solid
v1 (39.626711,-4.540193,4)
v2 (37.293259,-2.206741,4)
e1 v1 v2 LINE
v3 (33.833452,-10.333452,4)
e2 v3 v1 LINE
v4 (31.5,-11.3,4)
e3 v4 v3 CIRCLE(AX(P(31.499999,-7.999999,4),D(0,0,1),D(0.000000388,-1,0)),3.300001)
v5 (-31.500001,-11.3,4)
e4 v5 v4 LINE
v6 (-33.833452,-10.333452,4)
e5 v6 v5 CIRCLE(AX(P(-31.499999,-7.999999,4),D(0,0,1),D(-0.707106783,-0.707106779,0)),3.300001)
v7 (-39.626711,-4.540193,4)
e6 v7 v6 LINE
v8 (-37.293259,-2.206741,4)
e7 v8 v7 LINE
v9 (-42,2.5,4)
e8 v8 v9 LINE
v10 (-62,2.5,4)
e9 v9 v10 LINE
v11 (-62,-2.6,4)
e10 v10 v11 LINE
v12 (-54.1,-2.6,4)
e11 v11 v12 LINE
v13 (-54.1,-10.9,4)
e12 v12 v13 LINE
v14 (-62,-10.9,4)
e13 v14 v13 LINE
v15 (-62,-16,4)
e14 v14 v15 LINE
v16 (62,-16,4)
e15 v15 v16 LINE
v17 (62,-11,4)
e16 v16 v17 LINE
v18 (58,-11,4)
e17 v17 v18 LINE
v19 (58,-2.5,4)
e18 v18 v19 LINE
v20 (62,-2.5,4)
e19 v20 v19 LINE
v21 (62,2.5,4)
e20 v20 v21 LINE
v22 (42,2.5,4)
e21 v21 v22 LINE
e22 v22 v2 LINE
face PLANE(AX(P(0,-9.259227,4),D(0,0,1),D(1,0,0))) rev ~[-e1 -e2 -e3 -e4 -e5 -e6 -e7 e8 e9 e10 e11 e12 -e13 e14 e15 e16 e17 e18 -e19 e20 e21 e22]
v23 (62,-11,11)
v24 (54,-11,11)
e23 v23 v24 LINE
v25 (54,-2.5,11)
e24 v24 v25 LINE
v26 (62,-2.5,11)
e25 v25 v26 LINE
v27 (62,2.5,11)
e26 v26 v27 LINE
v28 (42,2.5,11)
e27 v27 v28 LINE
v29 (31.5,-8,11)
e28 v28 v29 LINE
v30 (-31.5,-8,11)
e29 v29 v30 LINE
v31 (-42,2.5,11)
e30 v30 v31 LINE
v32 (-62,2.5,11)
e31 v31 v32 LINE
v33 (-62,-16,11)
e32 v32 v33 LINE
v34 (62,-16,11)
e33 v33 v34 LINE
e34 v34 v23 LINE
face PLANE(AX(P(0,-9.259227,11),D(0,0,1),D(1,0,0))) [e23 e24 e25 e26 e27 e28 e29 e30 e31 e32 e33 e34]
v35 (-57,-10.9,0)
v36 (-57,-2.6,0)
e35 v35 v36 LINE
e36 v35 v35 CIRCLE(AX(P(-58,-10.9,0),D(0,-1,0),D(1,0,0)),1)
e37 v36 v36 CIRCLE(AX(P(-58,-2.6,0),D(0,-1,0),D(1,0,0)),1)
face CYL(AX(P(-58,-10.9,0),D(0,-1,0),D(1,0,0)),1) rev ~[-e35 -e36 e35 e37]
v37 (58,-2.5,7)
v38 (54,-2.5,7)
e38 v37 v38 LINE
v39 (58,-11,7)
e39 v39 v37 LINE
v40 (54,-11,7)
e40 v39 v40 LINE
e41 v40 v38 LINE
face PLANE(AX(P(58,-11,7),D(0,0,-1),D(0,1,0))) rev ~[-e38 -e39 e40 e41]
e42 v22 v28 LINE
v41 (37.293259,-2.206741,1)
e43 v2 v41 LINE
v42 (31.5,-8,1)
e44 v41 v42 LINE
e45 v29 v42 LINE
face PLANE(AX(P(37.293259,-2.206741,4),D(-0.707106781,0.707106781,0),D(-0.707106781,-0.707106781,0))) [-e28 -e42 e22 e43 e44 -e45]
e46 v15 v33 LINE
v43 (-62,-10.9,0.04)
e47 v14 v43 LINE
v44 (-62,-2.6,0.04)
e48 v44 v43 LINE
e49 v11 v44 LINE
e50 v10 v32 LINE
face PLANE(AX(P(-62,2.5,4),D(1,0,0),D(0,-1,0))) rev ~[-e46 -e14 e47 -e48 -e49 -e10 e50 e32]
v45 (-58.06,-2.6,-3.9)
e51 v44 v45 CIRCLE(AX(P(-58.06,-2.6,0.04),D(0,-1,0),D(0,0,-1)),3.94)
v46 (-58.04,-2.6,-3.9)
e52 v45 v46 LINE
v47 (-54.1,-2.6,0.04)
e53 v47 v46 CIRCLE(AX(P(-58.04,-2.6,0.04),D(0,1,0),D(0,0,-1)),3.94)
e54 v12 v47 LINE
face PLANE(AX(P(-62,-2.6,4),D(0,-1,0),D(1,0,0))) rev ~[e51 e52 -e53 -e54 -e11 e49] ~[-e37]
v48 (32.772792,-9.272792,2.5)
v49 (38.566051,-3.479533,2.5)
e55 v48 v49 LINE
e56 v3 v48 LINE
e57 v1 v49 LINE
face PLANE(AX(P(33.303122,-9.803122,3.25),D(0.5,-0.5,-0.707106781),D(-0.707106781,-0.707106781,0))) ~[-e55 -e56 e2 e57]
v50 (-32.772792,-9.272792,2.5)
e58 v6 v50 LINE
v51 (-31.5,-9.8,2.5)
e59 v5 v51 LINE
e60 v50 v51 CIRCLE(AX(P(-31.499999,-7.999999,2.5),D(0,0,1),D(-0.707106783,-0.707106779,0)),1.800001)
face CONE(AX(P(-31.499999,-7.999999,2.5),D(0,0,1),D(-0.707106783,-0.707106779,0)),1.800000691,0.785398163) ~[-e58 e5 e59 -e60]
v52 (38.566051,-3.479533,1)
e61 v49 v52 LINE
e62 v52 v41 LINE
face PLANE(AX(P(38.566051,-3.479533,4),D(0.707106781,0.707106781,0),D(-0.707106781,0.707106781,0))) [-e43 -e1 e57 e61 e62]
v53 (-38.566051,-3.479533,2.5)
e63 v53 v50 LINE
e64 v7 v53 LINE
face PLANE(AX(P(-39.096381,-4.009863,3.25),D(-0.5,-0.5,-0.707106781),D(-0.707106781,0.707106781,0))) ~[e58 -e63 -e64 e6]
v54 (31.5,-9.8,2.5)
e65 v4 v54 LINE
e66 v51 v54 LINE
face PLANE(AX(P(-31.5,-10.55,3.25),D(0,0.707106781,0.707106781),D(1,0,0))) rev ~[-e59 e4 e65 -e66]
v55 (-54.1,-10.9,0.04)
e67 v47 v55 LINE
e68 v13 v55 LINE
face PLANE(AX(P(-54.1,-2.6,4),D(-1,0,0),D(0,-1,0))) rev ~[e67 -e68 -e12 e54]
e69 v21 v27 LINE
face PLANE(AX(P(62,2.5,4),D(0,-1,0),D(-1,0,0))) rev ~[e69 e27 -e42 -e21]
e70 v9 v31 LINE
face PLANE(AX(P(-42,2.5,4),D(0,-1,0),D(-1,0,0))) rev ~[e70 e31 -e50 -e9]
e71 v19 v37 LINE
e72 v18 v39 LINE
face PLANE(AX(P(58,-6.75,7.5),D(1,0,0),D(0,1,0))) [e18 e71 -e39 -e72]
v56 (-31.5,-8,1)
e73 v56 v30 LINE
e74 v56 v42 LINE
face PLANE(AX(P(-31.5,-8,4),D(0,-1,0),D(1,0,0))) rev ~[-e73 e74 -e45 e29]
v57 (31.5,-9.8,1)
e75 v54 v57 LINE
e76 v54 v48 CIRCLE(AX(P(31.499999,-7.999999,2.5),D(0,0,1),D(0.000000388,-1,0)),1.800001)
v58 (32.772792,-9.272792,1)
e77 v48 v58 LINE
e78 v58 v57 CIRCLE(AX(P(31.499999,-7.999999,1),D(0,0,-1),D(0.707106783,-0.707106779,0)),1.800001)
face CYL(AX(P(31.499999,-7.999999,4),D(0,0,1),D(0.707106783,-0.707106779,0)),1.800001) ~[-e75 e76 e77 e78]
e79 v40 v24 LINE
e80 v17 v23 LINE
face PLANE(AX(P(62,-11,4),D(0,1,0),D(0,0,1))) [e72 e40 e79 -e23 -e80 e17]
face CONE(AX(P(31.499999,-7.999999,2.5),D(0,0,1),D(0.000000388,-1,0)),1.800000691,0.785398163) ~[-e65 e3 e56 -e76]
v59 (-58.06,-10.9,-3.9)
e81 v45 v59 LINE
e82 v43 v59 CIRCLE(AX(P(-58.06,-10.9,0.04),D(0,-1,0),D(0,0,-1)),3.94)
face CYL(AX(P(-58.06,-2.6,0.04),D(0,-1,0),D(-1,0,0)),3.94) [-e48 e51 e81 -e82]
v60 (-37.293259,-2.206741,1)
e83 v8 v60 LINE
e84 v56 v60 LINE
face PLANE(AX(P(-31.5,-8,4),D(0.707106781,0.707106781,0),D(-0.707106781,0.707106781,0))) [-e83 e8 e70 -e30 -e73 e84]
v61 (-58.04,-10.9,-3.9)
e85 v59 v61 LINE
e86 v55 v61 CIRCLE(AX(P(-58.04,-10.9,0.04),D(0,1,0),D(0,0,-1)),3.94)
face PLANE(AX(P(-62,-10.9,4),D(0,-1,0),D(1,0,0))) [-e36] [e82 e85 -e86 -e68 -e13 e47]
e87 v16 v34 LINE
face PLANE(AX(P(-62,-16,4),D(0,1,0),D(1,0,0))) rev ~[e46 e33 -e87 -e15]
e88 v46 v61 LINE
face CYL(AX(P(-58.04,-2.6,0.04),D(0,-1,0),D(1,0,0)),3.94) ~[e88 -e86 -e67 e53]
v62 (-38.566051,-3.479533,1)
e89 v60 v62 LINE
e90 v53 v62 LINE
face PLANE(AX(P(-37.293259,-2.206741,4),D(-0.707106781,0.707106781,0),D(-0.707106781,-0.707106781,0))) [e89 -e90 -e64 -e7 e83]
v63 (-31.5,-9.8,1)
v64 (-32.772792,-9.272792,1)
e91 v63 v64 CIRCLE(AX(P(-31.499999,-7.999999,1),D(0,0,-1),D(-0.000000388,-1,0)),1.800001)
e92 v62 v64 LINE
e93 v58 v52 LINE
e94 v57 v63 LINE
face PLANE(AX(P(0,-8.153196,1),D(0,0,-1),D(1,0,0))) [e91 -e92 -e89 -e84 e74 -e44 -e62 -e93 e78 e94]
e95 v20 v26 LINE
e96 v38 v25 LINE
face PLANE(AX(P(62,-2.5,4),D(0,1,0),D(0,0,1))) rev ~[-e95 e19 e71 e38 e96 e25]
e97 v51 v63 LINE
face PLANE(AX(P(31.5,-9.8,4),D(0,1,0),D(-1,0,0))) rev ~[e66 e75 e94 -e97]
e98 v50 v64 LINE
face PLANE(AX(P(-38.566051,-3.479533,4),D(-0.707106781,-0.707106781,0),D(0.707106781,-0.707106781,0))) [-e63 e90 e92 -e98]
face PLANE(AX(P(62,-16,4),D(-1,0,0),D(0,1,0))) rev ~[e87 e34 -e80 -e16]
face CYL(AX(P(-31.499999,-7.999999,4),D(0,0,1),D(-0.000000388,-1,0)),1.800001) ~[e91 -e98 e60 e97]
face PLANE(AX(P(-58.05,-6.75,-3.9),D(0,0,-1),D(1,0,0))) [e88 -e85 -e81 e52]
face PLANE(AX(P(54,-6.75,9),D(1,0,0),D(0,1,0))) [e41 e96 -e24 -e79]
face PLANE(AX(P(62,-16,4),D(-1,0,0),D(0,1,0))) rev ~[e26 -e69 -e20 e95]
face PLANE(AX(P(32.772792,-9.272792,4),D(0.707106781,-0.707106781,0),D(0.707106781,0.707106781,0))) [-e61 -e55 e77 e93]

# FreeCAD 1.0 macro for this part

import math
import FreeCAD as App
import Part
import Sketcher

V = App.Vector


def edges_at(feature, points):
    """Names of the edges that pass closest to the given points."""
    edges = feature.Shape.Edges
    near = lambda p: min(range(len(edges)), key=lambda i: edges[i].distToShape(Part.Vertex(*p))[0])
    return sorted({f"Edge{near(p) + 1}" for p in points})


def add_polygon(sketch, points):
    """Adds a closed chain of lines whose ends are joined by coincident constraints."""
    first, n = sketch.GeometryCount, len(points)
    for a, b in zip(points, points[1:] + points[:1]):
        sketch.addGeometry(Part.LineSegment(App.Vector(*a, 0), App.Vector(*b, 0)), False)
    for i in range(n):
        sketch.addConstraint(Sketcher.Constraint("Coincident", first + i, 2, first + (i + 1) % n, 1))

doc = App.newDocument("Part")
body = doc.addObject("PartDesign::Body", "Body")

# Sketch on XY plane
sketch1 = body.newObject("Sketcher::SketchObject", "Sketch")
sketch1.AttachmentSupport = (doc.getObject("XY_Plane"), [""])
sketch1.MapMode = "FlatFace"
sketch1.AttachmentOffset = App.Placement(V(0, 0, 4), App.Rotation())
add_polygon(sketch1, [(-62, 2), (-62, -16), (62, -16), (62, 2), (42, 2), (32, -8), (-32, -8), (-42, 2)])  # lines 0-7
sketch1.addConstraint([
    Sketcher.Constraint("Vertical", 0),
    Sketcher.Constraint("Horizontal", 1),
    Sketcher.Constraint("Vertical", 2),
    Sketcher.Constraint("Horizontal", 3),
    Sketcher.Constraint("Horizontal", 5),
    Sketcher.Constraint("Horizontal", 7),
    Sketcher.Constraint("Symmetric", 3, 2, 6, 2, -2),
    Sketcher.Constraint("Perpendicular", 4, 6),
    Sketcher.Constraint("Equal", 3, 7),
    Sketcher.Constraint("Equal", 4, 6),
    Sketcher.Constraint("DistanceX", 1, 1, 1, 2, 124.0),
    Sketcher.Constraint("DistanceX", 3, 2, 3, 1, 20.0),
    Sketcher.Constraint("DistanceX", 5, 2, 5, 1, 63.0),
    Sketcher.Constraint("DistanceY", 0, 2, 0, 1, 18.5),
    Sketcher.Constraint("DistanceY", 0, 2, -1, 1, 16.0),
])
pad1 = body.newObject("PartDesign::Pad", "Pad")
pad1.Profile = sketch1
pad1.Length = 7

# Sketch on XY plane
sketch2 = body.newObject("Sketcher::SketchObject", "Sketch001")
sketch2.AttachmentSupport = (doc.getObject("XY_Plane"), [""])
sketch2.MapMode = "FlatFace"
sketch2.AttachmentOffset = App.Placement(V(0, 0, 4), App.Rotation())
sketch2.addGeometry([
    Part.LineSegment(V(-31.5, -8, 0), V(31.5, -8, 0)),  # 0
    Part.LineSegment(V(31.5, -8, 0), V(37.3, -2.2, 0)),  # 1
    Part.LineSegment(V(37.3, -2.2, 0), V(38.6, -3.5, 0)),  # 2
    Part.LineSegment(V(38.6, -3.5, 0), V(32.8, -9.3, 0)),  # 3
    Part.ArcOfCircle(Part.Circle(V(31.5, -8, 0), V(0, 0, 1), 1.8), math.radians(-90), math.radians(-45)),  # 4
    Part.LineSegment(V(31.5, -9.8, 0), V(-31.5, -9.8, 0)),  # 5
    Part.ArcOfCircle(Part.Circle(V(-31.5, -8, 0), V(0, 0, 1), 1.8), math.radians(-135), math.radians(-90)),  # 6
    Part.LineSegment(V(-32.8, -9.3, 0), V(-38.6, -3.5, 0)),  # 7
    Part.LineSegment(V(-38.6, -3.5, 0), V(-37.3, -2.2, 0)),  # 8
    Part.LineSegment(V(-37.3, -2.2, 0), V(-31.5, -8, 0)),  # 9
], False)
sketch2.addConstraint([
    Sketcher.Constraint("Coincident", 0, 2, 1, 1),
    Sketcher.Constraint("Coincident", 1, 2, 2, 1),
    Sketcher.Constraint("Coincident", 2, 2, 3, 1),
    Sketcher.Constraint("Tangent", 3, 2, 4, 2),
    Sketcher.Constraint("Tangent", 4, 1, 5, 1),
    Sketcher.Constraint("Tangent", 5, 2, 6, 2),
    Sketcher.Constraint("Tangent", 6, 1, 7, 1),
    Sketcher.Constraint("Coincident", 7, 2, 8, 1),
    Sketcher.Constraint("Coincident", 8, 2, 9, 1),
    Sketcher.Constraint("Coincident", 9, 2, 0, 1),
    Sketcher.Constraint("Horizontal", 0),
    Sketcher.Constraint("Horizontal", 5),
    Sketcher.Constraint("Coincident", 0, 2, 4, 3),
    Sketcher.Constraint("Coincident", 9, 2, 6, 3),
    Sketcher.Constraint("Symmetric", 3, 2, 6, 1, -2),
    Sketcher.Constraint("Symmetric", 1, 2, 8, 2, -2),
    Sketcher.Constraint("Perpendicular", 1, 2),
    Sketcher.Constraint("Perpendicular", 2, 3),
    Sketcher.Constraint("Perpendicular", 3, 7),
    Sketcher.Constraint("Perpendicular", 7, 8),
    Sketcher.Constraint("Radius", 4, 1.800001),
    Sketcher.Constraint("DistanceX", 0, 1, 0, 2, 63.0),
    Sketcher.Constraint("DistanceY", 4, 3, -1, 1, 7.999999),
    Sketcher.Constraint("DistanceX", -1, 1, 1, 2, 37.293259),
])
pad2 = body.newObject("PartDesign::Pad", "Pad001")
pad2.Profile = sketch2
pad2.Length = 3
pad2.Reversed = True
doc.recompute()

chamfer = body.newObject("PartDesign::Chamfer", "Chamfer")
chamfer.Base = (pad2, edges_at(pad2, [(-35.669, -6.376, 4)]))
chamfer.Size = 1.5

# Sketch on XY plane
sketch3 = body.newObject("Sketcher::SketchObject", "Sketch002")
sketch3.AttachmentSupport = (doc.getObject("XY_Plane"), [""])
sketch3.MapMode = "FlatFace"
sketch3.AttachmentOffset = App.Placement(V(0, 0, 4), App.Rotation())
add_polygon(sketch3, [(-62, -11), (-62, -3), (-54, -3), (-54, -11)])  # lines 0-3
sketch3.addConstraint([
    Sketcher.Constraint("Vertical", 0),
    Sketcher.Constraint("Horizontal", 1),
    Sketcher.Constraint("Vertical", 2),
    Sketcher.Constraint("Horizontal", 3),
    Sketcher.Constraint("DistanceX", 1, 1, 1, 2, 7.9),
    Sketcher.Constraint("DistanceY", 0, 1, 0, 2, 8.3),
    Sketcher.Constraint("DistanceX", 0, 2, -1, 1, 62.0),
    Sketcher.Constraint("DistanceY", 0, 2, -1, 1, 2.6),
])
pad3 = body.newObject("PartDesign::Pad", "Pad002")
pad3.Profile = sketch3
pad3.Length = 7.9
pad3.Reversed = True
doc.recompute()

fillet = body.newObject("PartDesign::Fillet", "Fillet")
fillet.Base = (pad3, edges_at(pad3, [(-54.1, -6.75, -3.9), (-62, -6.75, -3.9)]))
fillet.Radius = 3.94

# Sketch on XZ plane
sketch4 = body.newObject("Sketcher::SketchObject", "Sketch003")
sketch4.AttachmentSupport = (doc.getObject("XZ_Plane"), [""])
sketch4.MapMode = "FlatFace"
sketch4.AttachmentOffset = App.Placement(V(0, 0, 10.9), App.Rotation())
sketch4.addGeometry(Part.Circle(V(-58, 0, 0), V(0, 0, 1), 1), False)
sketch4.addConstraint([
    Sketcher.Constraint("PointOnObject", 0, 3, -1),
    Sketcher.Constraint("Diameter", 0, 2.0),
    Sketcher.Constraint("DistanceX", 0, 3, -1, 1, 58.0),
])
pocket1 = body.newObject("PartDesign::Pocket", "Pocket")
pocket1.Profile = sketch4
pocket1.Length = 25

# Sketch on YZ plane
sketch5 = body.newObject("Sketcher::SketchObject", "Sketch004")
sketch5.AttachmentSupport = (doc.getObject("YZ_Plane"), [""])
sketch5.MapMode = "FlatFace"
sketch5.AttachmentOffset = App.Placement(V(0, 0, 62), App.Rotation())
add_polygon(sketch5, [(-11, 11), (-11, 4), (-2, 4), (-2, 11)])  # lines 0-3
sketch5.addConstraint([
    Sketcher.Constraint("Vertical", 0),
    Sketcher.Constraint("Horizontal", 1),
    Sketcher.Constraint("Vertical", 2),
    Sketcher.Constraint("Horizontal", 3),
    Sketcher.Constraint("DistanceY", 0, 2, 0, 1, 7.0),
    Sketcher.Constraint("DistanceX", 1, 1, 1, 2, 8.5),
    Sketcher.Constraint("DistanceX", 0, 2, -1, 1, 11.0),
    Sketcher.Constraint("DistanceY", -1, 1, 0, 2, 4.0),
])
pocket2 = body.newObject("PartDesign::Pocket", "Pocket001")
pocket2.Profile = sketch5
pocket2.Length = 4

# Sketch on YZ plane
sketch6 = body.newObject("Sketcher::SketchObject", "Sketch005")
sketch6.AttachmentSupport = (doc.getObject("YZ_Plane"), [""])
sketch6.MapMode = "FlatFace"
sketch6.AttachmentOffset = App.Placement(V(0, 0, 58), App.Rotation())
add_polygon(sketch6, [(-11, 11), (-11, 7), (-2.5, 7), (-2.5, 11)])  # lines 0-3
sketch6.addConstraint([
    Sketcher.Constraint("Vertical", 0),
    Sketcher.Constraint("Horizontal", 1),
    Sketcher.Constraint("Vertical", 2),
    Sketcher.Constraint("Horizontal", 3),
    Sketcher.Constraint("DistanceY", 0, 2, 0, 1, 4.0),
    Sketcher.Constraint("DistanceX", 1, 1, 1, 2, 8.5),
    Sketcher.Constraint("DistanceX", 0, 2, -1, 1, 11.0),
    Sketcher.Constraint("DistanceY", -1, 1, 0, 2, 7.0),
])
pocket3 = body.newObject("PartDesign::Pocket", "Pocket002")
pocket3.Profile = sketch6
pocket3.Length = 4

doc.recompute()
